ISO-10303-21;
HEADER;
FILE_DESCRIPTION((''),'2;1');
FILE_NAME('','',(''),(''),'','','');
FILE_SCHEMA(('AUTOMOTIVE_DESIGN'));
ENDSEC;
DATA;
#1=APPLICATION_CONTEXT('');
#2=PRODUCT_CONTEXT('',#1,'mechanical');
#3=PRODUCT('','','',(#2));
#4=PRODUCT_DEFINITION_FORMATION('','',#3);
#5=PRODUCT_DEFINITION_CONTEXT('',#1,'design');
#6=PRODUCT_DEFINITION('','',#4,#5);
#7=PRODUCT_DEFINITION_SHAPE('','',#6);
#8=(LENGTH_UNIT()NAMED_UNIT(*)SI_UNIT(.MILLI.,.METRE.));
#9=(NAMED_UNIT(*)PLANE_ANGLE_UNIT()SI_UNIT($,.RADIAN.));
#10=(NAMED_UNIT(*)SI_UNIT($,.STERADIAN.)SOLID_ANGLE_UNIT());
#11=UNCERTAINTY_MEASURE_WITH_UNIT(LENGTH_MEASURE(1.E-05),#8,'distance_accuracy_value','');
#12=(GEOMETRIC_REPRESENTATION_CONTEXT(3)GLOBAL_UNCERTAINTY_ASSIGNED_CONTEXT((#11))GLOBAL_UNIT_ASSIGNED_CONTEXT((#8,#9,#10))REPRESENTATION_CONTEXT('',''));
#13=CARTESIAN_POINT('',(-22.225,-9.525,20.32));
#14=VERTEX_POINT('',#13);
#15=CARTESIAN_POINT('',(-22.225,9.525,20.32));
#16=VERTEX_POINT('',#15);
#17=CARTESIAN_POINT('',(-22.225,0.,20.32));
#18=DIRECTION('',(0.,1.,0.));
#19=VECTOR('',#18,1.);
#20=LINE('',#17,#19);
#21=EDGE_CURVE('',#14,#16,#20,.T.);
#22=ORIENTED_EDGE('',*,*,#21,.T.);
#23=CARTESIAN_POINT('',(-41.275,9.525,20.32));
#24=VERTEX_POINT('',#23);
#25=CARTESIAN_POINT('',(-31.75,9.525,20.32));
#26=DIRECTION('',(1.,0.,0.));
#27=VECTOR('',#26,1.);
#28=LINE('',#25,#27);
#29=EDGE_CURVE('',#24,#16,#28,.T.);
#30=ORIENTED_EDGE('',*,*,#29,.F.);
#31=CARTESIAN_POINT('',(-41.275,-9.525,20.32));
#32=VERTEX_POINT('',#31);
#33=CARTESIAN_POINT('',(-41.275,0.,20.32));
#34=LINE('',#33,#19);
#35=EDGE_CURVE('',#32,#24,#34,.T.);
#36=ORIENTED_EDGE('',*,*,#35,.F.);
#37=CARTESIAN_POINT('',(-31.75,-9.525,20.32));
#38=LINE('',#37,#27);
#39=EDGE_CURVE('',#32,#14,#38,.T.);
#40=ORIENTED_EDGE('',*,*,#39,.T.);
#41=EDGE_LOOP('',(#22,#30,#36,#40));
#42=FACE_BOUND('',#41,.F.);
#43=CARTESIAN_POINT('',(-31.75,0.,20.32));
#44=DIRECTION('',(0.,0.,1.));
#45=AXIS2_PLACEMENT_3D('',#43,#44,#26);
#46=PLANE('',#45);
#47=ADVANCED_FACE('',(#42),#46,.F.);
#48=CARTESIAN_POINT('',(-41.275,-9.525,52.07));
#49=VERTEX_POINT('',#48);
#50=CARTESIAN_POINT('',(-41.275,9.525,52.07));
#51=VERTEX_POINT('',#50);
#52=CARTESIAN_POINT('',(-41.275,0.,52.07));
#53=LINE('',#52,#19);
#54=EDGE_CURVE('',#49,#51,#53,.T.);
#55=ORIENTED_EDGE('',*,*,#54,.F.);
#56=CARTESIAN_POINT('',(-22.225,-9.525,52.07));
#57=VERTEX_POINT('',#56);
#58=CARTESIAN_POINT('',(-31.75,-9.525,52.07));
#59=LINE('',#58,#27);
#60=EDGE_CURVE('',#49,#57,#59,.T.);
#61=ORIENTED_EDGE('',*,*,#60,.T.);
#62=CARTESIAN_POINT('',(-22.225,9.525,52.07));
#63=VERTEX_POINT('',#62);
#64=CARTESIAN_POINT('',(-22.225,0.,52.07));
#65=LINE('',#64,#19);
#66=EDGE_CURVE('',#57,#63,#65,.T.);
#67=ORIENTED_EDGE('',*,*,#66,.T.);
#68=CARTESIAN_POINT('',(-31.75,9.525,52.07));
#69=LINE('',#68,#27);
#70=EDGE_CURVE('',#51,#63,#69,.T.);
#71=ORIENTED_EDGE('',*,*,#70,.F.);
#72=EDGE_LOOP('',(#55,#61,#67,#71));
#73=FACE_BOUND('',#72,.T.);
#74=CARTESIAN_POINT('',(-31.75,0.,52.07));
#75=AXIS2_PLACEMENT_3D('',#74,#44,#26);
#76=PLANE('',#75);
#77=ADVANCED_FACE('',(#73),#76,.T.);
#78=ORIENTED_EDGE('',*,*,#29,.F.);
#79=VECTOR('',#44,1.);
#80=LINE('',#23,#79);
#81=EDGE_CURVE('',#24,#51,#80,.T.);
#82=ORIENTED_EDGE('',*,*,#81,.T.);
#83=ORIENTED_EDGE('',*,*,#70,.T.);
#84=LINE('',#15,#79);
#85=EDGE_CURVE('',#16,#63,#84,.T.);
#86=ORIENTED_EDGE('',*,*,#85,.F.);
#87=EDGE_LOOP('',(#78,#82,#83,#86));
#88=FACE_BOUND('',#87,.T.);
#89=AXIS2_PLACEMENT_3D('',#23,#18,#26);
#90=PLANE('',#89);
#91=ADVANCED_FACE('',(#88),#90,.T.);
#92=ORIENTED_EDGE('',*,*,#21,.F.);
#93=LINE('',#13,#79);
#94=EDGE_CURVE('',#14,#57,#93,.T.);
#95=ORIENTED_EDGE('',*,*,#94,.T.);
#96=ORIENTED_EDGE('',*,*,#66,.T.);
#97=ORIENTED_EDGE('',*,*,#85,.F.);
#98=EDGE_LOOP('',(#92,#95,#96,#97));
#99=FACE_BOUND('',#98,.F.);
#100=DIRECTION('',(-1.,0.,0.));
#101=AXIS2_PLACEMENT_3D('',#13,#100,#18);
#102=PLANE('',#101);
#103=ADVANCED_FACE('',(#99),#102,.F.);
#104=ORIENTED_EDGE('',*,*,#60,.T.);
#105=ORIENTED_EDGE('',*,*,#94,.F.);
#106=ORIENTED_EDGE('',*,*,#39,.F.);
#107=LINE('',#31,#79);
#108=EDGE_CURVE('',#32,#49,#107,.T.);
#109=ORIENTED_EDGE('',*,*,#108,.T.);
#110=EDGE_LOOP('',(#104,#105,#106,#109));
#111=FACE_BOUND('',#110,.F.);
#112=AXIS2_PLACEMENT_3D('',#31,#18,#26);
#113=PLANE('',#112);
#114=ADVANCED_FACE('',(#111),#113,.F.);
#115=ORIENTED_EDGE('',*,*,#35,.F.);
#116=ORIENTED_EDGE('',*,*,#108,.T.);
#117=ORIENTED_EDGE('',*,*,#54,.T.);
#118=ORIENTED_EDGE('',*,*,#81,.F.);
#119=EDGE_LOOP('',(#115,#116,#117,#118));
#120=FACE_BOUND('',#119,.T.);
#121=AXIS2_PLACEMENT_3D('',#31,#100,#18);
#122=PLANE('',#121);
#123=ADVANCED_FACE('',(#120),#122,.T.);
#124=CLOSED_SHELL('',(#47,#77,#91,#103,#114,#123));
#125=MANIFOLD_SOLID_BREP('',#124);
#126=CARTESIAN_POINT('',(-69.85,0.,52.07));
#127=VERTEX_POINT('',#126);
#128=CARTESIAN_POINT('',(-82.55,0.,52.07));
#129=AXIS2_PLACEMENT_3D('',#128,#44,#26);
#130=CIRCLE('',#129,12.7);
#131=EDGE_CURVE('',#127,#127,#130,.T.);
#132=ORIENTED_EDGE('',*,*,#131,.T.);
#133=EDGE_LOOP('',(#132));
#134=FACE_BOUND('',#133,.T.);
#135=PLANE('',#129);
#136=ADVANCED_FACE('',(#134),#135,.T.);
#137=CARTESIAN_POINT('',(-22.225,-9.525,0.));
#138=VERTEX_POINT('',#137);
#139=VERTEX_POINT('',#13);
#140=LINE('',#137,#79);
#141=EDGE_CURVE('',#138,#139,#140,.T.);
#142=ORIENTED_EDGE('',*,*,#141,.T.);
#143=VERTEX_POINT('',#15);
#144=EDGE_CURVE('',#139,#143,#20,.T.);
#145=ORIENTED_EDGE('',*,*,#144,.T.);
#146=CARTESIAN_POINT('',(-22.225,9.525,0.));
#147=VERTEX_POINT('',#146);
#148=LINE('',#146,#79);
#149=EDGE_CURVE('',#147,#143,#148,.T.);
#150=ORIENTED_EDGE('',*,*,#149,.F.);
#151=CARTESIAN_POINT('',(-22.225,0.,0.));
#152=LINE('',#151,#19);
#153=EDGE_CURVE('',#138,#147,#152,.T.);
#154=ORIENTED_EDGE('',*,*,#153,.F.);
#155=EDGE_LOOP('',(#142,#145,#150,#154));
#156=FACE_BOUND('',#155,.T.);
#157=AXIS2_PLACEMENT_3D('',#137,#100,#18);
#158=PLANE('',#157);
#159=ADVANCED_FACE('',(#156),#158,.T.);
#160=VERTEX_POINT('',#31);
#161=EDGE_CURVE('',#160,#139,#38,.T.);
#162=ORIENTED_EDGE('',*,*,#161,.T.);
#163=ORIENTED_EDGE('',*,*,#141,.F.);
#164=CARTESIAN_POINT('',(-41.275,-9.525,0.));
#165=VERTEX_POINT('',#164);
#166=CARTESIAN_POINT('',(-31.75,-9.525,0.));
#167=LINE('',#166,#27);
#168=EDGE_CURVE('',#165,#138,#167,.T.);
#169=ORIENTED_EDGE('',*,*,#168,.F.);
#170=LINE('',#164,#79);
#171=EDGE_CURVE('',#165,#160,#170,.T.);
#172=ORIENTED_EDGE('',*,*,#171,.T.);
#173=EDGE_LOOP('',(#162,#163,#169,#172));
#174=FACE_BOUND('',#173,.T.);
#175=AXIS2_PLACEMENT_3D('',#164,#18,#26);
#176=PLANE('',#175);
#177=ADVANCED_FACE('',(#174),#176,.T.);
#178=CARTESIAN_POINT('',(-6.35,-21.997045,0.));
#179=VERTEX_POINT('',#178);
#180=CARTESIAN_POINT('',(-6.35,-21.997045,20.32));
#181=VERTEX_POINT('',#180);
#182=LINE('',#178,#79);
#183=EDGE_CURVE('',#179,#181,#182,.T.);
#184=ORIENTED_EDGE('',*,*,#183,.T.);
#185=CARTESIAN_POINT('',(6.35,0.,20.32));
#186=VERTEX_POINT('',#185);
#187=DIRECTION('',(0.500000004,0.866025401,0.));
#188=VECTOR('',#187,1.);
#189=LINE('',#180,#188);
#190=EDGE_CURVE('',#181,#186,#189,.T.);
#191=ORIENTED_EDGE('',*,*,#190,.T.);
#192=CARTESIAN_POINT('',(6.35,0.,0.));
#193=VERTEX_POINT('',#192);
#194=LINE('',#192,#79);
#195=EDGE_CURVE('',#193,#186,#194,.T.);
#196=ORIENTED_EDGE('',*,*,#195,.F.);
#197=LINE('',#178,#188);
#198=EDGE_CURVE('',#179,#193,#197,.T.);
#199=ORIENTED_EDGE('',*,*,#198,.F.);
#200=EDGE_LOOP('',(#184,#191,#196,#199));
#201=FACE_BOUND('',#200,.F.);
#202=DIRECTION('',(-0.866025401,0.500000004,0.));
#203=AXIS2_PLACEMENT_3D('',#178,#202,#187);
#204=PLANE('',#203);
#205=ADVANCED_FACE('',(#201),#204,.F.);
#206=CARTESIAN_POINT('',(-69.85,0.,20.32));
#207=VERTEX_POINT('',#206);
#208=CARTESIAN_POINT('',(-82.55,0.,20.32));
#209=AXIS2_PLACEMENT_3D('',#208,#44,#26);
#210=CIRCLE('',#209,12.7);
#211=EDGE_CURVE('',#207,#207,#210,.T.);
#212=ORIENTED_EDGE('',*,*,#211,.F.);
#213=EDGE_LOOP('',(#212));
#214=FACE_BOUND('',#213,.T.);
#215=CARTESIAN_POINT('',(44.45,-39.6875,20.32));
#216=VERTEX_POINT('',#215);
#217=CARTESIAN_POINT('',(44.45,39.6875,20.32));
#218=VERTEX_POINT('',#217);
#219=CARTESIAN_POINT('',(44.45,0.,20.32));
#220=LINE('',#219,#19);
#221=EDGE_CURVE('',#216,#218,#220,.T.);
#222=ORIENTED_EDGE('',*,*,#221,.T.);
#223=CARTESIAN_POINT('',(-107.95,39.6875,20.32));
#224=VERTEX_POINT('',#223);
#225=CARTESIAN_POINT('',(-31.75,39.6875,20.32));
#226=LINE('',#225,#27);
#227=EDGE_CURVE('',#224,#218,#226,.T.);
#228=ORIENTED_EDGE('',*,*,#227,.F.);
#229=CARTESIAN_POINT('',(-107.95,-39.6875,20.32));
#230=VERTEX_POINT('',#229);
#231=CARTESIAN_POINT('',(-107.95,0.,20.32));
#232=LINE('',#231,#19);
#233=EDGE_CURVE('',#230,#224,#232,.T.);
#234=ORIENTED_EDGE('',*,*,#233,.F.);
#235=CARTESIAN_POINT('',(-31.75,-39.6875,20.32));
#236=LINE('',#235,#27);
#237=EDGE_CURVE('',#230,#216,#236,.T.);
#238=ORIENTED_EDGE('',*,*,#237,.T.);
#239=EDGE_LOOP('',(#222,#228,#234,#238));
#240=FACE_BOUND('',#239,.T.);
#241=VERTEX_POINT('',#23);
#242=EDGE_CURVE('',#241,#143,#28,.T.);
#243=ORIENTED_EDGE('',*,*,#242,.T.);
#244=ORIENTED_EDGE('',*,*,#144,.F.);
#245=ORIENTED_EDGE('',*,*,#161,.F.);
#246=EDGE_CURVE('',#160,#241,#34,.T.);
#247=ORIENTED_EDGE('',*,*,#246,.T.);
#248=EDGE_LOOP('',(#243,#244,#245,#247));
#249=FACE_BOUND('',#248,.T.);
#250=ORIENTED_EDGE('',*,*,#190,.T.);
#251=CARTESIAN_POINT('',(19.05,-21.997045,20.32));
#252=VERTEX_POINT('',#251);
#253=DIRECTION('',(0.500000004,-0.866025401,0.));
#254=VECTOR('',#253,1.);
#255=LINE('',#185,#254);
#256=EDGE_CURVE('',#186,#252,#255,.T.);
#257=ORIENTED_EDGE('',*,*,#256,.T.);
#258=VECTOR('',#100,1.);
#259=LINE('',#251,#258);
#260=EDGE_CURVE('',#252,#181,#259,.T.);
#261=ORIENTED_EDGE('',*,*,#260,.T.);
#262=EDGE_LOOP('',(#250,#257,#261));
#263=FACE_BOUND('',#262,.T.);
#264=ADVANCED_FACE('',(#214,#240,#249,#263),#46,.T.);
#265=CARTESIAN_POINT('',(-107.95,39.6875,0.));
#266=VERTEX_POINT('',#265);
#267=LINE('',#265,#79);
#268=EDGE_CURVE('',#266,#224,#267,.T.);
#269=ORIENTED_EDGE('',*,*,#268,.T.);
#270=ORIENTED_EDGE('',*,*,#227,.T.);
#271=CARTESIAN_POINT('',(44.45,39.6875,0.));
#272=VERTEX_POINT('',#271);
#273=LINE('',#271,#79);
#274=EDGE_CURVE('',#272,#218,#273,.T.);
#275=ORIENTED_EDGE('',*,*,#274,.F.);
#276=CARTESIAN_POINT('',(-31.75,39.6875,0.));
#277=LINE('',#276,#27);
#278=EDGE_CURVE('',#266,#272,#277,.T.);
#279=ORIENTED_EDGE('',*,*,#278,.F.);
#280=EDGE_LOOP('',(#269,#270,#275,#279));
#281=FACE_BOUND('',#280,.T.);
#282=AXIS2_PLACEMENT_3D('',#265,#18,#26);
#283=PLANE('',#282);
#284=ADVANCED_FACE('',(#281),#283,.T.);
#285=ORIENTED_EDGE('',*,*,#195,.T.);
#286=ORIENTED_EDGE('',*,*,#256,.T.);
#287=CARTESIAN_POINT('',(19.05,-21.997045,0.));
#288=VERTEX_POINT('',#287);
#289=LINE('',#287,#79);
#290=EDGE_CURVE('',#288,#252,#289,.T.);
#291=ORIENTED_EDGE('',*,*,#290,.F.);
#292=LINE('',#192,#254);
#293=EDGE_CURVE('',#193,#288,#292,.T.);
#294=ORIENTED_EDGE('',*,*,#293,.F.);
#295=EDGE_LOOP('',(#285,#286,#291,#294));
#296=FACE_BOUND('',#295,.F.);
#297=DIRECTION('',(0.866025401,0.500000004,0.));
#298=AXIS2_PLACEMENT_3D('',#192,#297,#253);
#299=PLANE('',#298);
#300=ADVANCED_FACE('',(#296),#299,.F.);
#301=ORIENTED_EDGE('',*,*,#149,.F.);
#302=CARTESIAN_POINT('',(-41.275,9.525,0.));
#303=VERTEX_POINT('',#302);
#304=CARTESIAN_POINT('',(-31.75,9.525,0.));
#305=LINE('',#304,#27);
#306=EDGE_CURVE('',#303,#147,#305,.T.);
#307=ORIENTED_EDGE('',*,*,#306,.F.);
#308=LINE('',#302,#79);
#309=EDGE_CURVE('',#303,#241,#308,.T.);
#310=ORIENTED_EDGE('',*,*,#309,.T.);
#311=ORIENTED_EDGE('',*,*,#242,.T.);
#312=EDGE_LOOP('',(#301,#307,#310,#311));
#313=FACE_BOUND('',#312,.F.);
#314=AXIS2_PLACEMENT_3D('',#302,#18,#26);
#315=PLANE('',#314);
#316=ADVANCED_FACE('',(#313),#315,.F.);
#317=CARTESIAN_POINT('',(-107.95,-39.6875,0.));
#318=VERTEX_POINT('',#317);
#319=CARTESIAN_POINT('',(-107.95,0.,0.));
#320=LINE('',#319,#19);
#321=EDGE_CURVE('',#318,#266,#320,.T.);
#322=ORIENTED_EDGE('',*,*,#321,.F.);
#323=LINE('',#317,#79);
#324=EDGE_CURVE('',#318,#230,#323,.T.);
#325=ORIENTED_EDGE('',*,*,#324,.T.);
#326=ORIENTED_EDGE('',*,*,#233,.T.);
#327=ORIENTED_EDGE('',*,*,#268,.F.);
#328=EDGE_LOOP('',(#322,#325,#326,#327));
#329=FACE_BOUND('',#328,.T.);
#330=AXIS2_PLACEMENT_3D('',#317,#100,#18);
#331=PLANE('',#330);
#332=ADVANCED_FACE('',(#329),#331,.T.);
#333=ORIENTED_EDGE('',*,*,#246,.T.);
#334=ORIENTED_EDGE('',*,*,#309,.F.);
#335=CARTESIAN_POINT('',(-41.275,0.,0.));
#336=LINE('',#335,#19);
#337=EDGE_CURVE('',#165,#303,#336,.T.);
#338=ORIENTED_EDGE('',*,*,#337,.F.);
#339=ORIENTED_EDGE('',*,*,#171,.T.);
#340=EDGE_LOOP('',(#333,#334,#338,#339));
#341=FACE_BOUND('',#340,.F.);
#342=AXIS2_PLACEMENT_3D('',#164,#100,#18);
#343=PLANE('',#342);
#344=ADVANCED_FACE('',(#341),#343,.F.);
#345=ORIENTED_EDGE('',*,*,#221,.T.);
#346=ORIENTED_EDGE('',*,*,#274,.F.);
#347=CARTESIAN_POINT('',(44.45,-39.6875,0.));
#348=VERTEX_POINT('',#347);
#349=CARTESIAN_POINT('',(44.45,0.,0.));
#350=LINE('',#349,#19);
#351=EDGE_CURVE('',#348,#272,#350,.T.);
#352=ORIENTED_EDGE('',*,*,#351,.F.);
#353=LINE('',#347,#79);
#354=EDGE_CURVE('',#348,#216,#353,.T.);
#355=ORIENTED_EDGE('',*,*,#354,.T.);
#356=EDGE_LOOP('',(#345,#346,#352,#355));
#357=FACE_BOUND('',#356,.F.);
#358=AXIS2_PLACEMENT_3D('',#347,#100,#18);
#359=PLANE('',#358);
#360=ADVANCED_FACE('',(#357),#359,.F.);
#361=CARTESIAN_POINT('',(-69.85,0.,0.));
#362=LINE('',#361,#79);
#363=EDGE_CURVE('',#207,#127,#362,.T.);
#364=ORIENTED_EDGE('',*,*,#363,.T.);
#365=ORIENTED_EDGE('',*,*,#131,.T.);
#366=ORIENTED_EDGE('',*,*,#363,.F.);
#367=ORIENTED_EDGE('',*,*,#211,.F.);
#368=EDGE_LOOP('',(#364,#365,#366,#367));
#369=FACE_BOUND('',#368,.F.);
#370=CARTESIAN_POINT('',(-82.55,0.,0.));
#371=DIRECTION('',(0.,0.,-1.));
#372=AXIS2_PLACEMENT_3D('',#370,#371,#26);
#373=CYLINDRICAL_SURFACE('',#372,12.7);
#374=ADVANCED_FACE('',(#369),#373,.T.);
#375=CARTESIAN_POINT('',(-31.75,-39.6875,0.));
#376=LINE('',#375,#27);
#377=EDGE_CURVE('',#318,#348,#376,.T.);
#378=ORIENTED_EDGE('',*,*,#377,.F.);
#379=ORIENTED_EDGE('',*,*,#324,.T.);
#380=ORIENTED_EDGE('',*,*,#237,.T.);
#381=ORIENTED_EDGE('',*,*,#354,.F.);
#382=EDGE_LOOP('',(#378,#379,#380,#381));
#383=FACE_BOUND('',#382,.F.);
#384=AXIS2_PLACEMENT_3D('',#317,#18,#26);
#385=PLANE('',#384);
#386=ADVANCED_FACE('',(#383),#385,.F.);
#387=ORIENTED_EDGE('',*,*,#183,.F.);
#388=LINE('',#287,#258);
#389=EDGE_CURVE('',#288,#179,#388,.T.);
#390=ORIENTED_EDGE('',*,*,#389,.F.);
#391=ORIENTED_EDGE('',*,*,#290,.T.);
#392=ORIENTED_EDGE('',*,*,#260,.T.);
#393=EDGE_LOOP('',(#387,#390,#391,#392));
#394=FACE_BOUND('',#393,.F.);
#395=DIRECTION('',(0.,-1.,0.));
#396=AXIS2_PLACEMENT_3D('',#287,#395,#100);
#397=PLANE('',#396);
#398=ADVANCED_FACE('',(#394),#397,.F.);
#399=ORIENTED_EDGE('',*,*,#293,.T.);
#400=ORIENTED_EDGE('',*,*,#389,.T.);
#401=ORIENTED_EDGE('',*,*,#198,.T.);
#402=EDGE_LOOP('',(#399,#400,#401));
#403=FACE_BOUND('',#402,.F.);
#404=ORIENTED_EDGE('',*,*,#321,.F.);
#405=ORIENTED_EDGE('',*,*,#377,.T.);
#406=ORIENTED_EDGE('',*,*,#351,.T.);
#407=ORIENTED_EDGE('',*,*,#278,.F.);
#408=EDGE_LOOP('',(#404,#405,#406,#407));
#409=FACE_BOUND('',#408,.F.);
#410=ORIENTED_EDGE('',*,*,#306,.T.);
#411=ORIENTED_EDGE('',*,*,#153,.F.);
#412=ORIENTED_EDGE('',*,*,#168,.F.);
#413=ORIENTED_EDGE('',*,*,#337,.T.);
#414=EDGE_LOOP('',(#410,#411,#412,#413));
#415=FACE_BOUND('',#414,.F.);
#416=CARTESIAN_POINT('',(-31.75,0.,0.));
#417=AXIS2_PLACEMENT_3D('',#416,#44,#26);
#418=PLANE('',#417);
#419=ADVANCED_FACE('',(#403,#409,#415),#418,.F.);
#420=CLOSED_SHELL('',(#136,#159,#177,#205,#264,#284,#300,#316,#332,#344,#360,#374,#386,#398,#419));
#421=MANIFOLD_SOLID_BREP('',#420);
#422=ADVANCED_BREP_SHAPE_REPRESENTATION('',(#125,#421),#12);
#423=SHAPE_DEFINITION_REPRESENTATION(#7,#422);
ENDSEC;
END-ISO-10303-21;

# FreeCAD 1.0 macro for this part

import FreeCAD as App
import Part
import Sketcher
Q = App.Units.Quantity

doc = App.newDocument("Part")
body = doc.addObject("PartDesign::Body", "Body")

# Sketch on XY plane
sketch1 = body.newObject("Sketcher::SketchObject", "Sketch")
sketch1.AttachmentSupport = (doc.getObject("XY_Plane"), [""])
sketch1.MapMode = "FlatFace"
sketch1.addGeometry([
    Part.LineSegment(App.Vector(-108, 40, 0), App.Vector(-108, -40, 0)),  # 0
    Part.LineSegment(App.Vector(-108, -40, 0), App.Vector(44, -40, 0)),  # 1
    Part.LineSegment(App.Vector(44, -40, 0), App.Vector(44, 40, 0)),  # 2
    Part.LineSegment(App.Vector(44, 40, 0), App.Vector(-108, 40, 0)),  # 3
    Part.LineSegment(App.Vector(19, -22, 0), App.Vector(-6, -22, 0)),  # 4
    Part.LineSegment(App.Vector(-6, -22, 0), App.Vector(6, 0, 0)),  # 5
    Part.LineSegment(App.Vector(6, 0, 0), App.Vector(19, -22, 0)),  # 6
    Part.Circle(App.Vector(-83, 0, 0), App.Vector(0, 0, 1), 13),  # 7
    Part.LineSegment(App.Vector(-22, -10, 0), App.Vector(-41, -10, 0)),  # 8
    Part.LineSegment(App.Vector(-41, -10, 0), App.Vector(-41, 10, 0)),  # 9
    Part.LineSegment(App.Vector(-41, 10, 0), App.Vector(-22, 10, 0)),  # 10
    Part.LineSegment(App.Vector(-22, 10, 0), App.Vector(-22, -10, 0)),  # 11
], False)
sketch1.addConstraint([
    Sketcher.Constraint("Coincident", 0, 2, 1, 1),
    Sketcher.Constraint("Coincident", 1, 2, 2, 1),
    Sketcher.Constraint("Coincident", 2, 2, 3, 1),
    Sketcher.Constraint("Coincident", 3, 2, 0, 1),
    Sketcher.Constraint("Coincident", 4, 2, 5, 1),
    Sketcher.Constraint("Coincident", 5, 2, 6, 1),
    Sketcher.Constraint("Coincident", 6, 2, 4, 1),
    Sketcher.Constraint("Coincident", 8, 2, 9, 1),
    Sketcher.Constraint("Coincident", 9, 2, 10, 1),
    Sketcher.Constraint("Coincident", 10, 2, 11, 1),
    Sketcher.Constraint("Coincident", 11, 2, 8, 1),
    Sketcher.Constraint("Vertical", 0),
    Sketcher.Constraint("Horizontal", 1),
    Sketcher.Constraint("Vertical", 2),
    Sketcher.Constraint("Horizontal", 3),
    Sketcher.Constraint("Horizontal", 4),
    Sketcher.Constraint("Horizontal", 8),
    Sketcher.Constraint("Vertical", 9),
    Sketcher.Constraint("Horizontal", 10),
    Sketcher.Constraint("Vertical", 11),
    Sketcher.Constraint("PointOnObject", 7, 3, -1),
    Sketcher.Constraint("PointOnObject", 5, 2, -1),
    Sketcher.Constraint("Equal", 10, 9),
    Sketcher.Constraint("Equal", 5, 6),
    Sketcher.Constraint("Diameter", 7, Q("1 in")),
    Sketcher.Constraint("DistanceX", 1, 1, 1, 2, Q("6 in")),
    Sketcher.Constraint("DistanceX", 4, 2, 4, 1, Q("1 in")),
    Sketcher.Constraint("Distance", 5, Q("1 in")),
    Sketcher.Constraint("DistanceX", 0, 2, 7, 3, Q("1 in")),
    Sketcher.Constraint("DistanceX", 4, 2, 1, 2, Q("2 in")),
    Sketcher.Constraint("DistanceX", 8, 2, 8, 1, Q("0.75 in")),
    Sketcher.Constraint("DistanceY", 0, 2, 0, 1, Q("3.125 in")),
    Sketcher.Constraint("DistanceX", 7, 3, -1, 1, Q("3.25 in")),
    Sketcher.Constraint("DistanceY", 0, 2, -1, 1, Q("1.5625 in")),
    Sketcher.Constraint("DistanceX", 8, 2, -1, 1, Q("1.625 in")),
    Sketcher.Constraint("DistanceY", 8, 2, -1, 1, Q("0.375 in")),
])
pad1 = body.newObject("PartDesign::Pad", "Pad")
pad1.Profile = sketch1
pad1.Length = Q("0.8 in")

# Sketch on XY plane
sketch2 = body.newObject("Sketcher::SketchObject", "Sketch001")
sketch2.AttachmentSupport = (doc.getObject("XY_Plane"), [""])
sketch2.MapMode = "FlatFace"
sketch2.addGeometry(Part.Circle(App.Vector(-83, 0, 0), App.Vector(0, 0, 1), 13), False)
sketch2.addConstraint([
    Sketcher.Constraint("PointOnObject", 0, 3, -1),
    Sketcher.Constraint("Diameter", 0, Q("1 in")),
    Sketcher.Constraint("DistanceX", 0, 3, -1, 1, Q("3.25 in")),
])
pad2 = body.newObject("PartDesign::Pad", "Pad001")
pad2.Profile = sketch2
pad2.Length = Q("2.05 in")
body2 = doc.addObject("PartDesign::Body", "Body001")

# Sketch on XY plane
sketch3 = body2.newObject("Sketcher::SketchObject", "Sketch002")
sketch3.AttachmentSupport = (doc.getObject("XY_Plane001"), [""])
sketch3.MapMode = "FlatFace"
sketch3.AttachmentOffset = App.Placement(App.Vector(0, 0, 0.8 * 25.4), App.Rotation())
sketch3.addGeometry([
    Part.LineSegment(App.Vector(-41, 10, 0), App.Vector(-41, -10, 0)),
    Part.LineSegment(App.Vector(-41, -10, 0), App.Vector(-22, -10, 0)),
    Part.LineSegment(App.Vector(-22, -10, 0), App.Vector(-22, 10, 0)),
    Part.LineSegment(App.Vector(-22, 10, 0), App.Vector(-41, 10, 0)),
], False)
sketch3.addConstraint([
    Sketcher.Constraint("Coincident", 0, 2, 1, 1),
    Sketcher.Constraint("Coincident", 1, 2, 2, 1),
    Sketcher.Constraint("Coincident", 2, 2, 3, 1),
    Sketcher.Constraint("Coincident", 3, 2, 0, 1),
    Sketcher.Constraint("Vertical", 0),
    Sketcher.Constraint("Horizontal", 1),
    Sketcher.Constraint("Vertical", 2),
    Sketcher.Constraint("Horizontal", 3),
    Sketcher.Constraint("Equal", 3, 0),
    Sketcher.Constraint("DistanceX", 1, 1, 1, 2, Q("0.75 in")),
    Sketcher.Constraint("DistanceX", 0, 2, -1, 1, Q("1.625 in")),
    Sketcher.Constraint("DistanceY", 0, 2, -1, 1, Q("0.375 in")),
])
pad3 = body2.newObject("PartDesign::Pad", "Pad002")
pad3.Profile = sketch3
pad3.Length = Q("1.25 in")

doc.recompute()
